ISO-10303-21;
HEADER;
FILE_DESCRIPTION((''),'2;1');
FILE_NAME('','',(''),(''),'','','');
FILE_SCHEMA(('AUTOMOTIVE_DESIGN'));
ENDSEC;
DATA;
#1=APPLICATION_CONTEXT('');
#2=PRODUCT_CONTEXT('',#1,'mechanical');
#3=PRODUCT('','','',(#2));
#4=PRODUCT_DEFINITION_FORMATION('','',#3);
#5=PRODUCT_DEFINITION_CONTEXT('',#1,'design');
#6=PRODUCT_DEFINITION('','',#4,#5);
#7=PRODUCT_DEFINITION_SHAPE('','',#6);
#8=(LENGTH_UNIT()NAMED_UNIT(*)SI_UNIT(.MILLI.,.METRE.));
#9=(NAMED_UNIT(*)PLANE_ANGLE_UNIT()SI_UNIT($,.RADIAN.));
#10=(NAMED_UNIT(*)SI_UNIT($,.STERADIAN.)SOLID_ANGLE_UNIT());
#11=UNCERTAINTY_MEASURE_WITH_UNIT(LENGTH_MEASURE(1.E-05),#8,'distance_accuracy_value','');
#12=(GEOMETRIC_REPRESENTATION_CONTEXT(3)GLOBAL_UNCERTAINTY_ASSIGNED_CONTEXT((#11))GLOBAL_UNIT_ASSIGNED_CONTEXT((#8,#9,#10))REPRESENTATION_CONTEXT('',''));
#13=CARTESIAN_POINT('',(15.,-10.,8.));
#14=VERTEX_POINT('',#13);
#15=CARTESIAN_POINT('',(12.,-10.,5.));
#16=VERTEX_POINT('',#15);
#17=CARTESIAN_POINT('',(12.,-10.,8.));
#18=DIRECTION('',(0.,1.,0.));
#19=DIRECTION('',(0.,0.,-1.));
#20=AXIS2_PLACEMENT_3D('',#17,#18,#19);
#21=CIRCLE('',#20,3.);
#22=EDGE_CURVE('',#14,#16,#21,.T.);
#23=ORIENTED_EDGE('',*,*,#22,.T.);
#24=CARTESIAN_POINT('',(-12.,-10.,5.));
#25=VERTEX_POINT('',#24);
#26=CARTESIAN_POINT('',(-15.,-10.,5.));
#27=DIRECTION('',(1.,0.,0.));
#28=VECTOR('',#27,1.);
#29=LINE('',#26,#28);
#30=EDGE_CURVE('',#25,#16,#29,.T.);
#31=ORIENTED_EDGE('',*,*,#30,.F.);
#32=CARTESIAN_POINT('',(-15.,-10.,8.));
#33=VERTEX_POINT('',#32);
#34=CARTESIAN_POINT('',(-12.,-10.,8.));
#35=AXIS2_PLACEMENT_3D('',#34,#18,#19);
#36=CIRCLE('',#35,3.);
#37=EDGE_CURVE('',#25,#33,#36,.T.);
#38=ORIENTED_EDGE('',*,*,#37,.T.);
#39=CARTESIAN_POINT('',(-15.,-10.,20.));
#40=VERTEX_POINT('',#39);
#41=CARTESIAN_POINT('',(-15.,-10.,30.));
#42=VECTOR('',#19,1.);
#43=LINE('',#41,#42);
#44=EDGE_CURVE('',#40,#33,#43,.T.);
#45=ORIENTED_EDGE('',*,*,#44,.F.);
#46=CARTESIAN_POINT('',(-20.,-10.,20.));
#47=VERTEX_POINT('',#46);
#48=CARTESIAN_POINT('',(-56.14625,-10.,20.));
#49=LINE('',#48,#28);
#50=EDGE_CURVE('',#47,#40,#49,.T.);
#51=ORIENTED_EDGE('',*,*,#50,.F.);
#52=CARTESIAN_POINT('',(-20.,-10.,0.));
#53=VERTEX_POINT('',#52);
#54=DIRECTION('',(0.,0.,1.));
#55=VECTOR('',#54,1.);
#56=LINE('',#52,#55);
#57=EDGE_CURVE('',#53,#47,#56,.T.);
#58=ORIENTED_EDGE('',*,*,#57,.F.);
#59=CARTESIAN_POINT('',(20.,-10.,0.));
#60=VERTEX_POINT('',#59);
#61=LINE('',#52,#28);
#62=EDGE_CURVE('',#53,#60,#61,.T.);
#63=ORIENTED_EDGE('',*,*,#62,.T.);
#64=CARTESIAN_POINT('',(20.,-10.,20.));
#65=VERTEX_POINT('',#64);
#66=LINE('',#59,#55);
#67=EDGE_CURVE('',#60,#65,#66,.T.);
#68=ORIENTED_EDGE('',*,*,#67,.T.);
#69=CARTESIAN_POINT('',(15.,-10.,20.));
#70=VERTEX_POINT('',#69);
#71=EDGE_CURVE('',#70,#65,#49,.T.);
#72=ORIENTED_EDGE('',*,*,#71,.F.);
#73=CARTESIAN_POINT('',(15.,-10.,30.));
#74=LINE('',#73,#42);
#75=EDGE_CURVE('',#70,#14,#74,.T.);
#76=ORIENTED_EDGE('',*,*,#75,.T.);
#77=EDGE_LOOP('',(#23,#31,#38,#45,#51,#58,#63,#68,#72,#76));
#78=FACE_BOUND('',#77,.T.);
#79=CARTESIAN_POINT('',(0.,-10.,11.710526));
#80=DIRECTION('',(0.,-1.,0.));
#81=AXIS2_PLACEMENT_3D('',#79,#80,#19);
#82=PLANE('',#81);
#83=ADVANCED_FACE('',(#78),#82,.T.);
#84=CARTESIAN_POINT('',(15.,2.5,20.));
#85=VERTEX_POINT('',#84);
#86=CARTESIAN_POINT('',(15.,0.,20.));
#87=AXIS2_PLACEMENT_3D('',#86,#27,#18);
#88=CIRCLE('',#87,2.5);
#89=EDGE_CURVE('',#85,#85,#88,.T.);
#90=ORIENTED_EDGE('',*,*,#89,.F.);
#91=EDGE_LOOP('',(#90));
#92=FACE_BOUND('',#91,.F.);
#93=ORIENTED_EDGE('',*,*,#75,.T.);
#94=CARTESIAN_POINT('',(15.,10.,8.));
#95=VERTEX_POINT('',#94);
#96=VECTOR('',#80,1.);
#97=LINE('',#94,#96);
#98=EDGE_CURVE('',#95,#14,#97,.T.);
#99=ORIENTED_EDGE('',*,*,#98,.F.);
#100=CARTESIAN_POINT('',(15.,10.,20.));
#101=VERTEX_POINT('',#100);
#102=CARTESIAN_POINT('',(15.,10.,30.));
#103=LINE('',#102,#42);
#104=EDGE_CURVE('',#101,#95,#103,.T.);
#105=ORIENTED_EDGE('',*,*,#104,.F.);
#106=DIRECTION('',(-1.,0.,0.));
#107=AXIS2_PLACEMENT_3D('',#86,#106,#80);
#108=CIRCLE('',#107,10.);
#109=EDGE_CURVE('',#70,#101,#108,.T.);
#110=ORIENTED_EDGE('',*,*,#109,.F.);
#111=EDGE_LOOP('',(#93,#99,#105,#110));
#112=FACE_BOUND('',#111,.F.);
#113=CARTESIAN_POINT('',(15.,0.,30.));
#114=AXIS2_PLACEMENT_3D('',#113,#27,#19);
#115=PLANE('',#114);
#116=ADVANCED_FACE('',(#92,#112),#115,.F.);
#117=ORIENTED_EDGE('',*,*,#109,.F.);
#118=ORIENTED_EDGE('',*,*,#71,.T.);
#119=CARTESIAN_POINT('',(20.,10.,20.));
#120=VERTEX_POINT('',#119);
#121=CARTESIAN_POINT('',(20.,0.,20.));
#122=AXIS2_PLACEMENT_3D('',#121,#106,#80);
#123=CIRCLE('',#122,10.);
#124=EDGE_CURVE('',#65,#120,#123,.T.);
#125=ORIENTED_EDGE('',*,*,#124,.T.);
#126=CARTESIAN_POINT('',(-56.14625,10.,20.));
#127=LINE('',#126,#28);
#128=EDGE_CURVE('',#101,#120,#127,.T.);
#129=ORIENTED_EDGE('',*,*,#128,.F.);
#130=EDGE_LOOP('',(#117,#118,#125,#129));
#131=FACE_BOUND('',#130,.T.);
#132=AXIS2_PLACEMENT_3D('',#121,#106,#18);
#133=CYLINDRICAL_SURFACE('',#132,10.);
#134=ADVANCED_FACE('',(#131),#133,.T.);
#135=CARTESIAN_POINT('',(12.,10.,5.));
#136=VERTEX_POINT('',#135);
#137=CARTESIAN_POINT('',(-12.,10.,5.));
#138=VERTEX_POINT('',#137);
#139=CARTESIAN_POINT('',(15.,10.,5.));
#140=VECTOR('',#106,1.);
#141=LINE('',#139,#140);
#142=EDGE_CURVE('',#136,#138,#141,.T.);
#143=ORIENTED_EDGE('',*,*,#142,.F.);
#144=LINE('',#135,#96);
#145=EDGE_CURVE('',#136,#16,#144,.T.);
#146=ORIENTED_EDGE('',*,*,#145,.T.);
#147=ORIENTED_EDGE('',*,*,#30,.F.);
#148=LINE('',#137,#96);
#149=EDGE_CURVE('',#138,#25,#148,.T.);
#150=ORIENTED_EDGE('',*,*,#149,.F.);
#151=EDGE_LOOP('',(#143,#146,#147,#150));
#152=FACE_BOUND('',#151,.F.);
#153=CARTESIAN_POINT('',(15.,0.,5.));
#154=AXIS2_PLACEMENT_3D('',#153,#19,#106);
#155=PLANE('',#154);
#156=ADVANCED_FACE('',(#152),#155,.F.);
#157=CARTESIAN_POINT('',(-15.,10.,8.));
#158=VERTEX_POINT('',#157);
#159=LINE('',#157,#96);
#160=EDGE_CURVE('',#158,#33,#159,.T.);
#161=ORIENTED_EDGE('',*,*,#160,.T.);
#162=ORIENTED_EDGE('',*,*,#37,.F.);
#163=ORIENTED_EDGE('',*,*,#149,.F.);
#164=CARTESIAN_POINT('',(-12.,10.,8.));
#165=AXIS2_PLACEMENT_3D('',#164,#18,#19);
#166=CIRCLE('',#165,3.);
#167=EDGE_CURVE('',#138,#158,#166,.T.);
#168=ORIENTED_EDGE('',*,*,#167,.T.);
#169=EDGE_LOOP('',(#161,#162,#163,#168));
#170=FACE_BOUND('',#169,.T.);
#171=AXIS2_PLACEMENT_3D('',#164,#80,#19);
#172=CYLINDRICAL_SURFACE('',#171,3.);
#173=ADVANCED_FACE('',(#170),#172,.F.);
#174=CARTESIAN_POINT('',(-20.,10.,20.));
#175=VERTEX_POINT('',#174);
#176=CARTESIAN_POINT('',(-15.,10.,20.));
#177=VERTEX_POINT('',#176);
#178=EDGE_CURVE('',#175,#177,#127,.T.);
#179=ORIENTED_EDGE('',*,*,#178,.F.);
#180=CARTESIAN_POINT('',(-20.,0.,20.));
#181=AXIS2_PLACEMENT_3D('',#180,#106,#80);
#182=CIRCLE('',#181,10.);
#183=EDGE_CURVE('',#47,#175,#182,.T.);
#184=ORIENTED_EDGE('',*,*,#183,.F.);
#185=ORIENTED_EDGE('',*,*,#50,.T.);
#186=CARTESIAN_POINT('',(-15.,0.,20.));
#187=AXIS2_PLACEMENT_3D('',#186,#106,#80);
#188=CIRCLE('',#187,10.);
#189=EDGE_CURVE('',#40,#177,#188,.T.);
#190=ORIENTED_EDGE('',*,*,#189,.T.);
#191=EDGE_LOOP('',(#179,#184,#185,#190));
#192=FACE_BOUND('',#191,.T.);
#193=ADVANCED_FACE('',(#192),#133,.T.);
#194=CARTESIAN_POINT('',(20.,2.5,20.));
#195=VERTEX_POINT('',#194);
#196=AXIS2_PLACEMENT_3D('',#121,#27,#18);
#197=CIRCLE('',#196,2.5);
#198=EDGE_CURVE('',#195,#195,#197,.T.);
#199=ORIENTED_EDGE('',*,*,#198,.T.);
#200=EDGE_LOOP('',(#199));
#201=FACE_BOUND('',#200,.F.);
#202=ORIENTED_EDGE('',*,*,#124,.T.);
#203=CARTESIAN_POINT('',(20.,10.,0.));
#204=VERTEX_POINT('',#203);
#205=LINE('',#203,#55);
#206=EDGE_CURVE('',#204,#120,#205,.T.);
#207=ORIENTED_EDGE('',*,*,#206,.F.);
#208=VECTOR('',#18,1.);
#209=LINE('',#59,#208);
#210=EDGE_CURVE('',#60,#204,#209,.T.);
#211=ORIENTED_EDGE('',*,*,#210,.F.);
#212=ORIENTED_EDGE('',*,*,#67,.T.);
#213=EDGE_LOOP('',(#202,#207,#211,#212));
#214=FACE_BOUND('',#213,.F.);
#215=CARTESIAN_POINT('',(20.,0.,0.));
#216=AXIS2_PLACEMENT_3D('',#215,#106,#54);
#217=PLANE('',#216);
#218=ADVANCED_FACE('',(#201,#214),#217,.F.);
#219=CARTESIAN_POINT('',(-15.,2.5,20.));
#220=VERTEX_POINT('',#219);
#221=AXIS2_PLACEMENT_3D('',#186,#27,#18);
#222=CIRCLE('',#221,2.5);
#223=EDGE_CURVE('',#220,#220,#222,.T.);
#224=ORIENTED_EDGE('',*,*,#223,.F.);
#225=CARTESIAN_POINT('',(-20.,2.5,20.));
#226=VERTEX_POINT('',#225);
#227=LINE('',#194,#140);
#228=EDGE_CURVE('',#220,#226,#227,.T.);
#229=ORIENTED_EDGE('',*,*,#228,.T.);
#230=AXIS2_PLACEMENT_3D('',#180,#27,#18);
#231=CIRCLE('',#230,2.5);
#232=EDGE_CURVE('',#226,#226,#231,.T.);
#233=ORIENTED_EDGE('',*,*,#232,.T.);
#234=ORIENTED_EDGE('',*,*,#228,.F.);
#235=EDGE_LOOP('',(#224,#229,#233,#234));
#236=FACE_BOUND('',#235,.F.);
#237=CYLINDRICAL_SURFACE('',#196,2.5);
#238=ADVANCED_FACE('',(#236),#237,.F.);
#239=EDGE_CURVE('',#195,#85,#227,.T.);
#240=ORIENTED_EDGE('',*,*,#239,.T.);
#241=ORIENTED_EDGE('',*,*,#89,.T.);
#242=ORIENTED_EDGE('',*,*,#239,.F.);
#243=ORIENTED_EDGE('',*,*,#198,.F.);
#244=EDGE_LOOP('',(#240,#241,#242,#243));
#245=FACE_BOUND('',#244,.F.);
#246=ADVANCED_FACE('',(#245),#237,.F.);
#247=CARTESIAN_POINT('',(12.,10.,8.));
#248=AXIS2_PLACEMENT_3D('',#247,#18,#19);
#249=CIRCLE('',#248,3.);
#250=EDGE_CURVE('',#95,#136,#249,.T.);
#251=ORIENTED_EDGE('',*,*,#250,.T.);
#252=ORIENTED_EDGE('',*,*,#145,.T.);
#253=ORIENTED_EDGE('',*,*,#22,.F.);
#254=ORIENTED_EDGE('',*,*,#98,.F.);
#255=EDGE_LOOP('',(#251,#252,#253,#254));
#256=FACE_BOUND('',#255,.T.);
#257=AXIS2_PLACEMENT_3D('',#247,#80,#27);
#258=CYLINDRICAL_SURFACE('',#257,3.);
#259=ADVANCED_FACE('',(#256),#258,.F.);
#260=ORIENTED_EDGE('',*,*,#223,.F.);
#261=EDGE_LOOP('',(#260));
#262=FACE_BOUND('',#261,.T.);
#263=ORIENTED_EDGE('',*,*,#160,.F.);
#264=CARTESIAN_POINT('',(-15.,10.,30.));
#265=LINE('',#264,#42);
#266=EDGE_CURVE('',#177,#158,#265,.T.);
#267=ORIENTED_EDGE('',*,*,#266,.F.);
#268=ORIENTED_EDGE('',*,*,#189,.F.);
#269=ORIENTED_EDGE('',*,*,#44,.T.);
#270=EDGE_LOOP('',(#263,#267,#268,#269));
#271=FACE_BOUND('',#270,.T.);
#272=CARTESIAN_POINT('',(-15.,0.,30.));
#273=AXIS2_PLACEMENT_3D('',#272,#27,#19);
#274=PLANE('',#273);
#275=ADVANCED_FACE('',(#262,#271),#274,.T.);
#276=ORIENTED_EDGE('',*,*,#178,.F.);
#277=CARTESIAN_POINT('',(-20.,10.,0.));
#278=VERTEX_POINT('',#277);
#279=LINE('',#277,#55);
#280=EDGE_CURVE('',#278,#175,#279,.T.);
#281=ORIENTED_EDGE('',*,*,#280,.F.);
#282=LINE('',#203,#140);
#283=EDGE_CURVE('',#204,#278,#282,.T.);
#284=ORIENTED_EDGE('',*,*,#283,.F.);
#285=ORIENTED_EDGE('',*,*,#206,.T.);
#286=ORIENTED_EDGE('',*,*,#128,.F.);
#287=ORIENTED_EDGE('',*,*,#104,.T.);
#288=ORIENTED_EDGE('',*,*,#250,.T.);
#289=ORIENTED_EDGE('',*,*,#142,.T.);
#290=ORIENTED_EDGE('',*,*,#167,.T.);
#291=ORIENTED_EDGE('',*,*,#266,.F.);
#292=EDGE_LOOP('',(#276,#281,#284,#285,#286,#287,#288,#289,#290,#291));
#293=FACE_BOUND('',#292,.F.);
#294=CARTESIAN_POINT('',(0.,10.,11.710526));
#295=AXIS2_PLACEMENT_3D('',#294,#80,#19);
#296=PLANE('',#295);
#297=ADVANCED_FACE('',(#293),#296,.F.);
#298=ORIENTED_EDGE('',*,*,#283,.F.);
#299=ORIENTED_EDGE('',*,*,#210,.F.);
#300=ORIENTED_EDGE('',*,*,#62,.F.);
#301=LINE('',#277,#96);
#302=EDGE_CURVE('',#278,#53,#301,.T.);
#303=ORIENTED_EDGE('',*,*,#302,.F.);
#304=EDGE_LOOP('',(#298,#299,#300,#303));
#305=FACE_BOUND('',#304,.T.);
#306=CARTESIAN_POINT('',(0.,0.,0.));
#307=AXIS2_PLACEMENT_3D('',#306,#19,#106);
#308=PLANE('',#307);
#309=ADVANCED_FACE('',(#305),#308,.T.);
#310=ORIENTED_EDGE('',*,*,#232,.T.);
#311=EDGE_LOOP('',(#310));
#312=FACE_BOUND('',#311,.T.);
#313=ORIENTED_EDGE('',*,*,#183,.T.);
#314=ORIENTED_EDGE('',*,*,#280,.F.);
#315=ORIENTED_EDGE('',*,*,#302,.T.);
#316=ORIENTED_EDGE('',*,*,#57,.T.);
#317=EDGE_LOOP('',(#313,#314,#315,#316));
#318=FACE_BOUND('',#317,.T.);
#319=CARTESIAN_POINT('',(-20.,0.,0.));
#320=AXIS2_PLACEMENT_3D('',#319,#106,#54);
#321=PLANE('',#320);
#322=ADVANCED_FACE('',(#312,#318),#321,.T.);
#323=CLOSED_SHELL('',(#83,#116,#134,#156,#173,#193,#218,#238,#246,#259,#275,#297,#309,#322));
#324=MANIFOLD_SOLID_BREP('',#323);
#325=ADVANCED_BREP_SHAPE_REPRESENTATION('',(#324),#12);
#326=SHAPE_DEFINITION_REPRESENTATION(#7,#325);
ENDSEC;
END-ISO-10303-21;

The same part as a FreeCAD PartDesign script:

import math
import FreeCAD as App
import Part
import Sketcher
from FreeCAD import Vector
Q = App.Units.Quantity


def edges_at(feature, points):
    """Names of the edges that pass closest to the given points."""
    edges = feature.Shape.Edges
    near = lambda p: min(range(len(edges)), key=lambda i: edges[i].distToShape(Part.Vertex(*p))[0])
    return sorted({f"Edge{near(p) + 1}" for p in points})


def add_polygon(sketch, points):
    """Adds a closed chain of lines whose ends are joined by coincident constraints."""
    first, n = sketch.GeometryCount, len(points)
    for a, b in zip(points, points[1:] + points[:1]):
        sketch.addGeometry(Part.LineSegment(App.Vector(*a, 0), App.Vector(*b, 0)), False)
    for i in range(n):
        sketch.addConstraint(Sketcher.Constraint("Coincident", first + i, 2, first + (i + 1) % n, 1))

doc = App.newDocument("Part")
params = doc.addObject("Spreadsheet::Sheet", "Params")
for row, (alias, value) in enumerate([
    ("sketch1_width", "5 mm"),
    ("sketch1_width2", "30 mm"),
    ("sketch1_height", "25 mm"),
    ("pad1_length", "20 mm"),
    ("sketch2_diameter", "5 mm"),
    ("sketch2_radius", "10 mm"),
    ("pocket1_length", "152.2925 mm"),
    ("fillet_radius", "3 mm"),
], start=1):
    params.set(f"A{row}", alias)
    params.set(f"B{row}", "=" + value)
    params.setAlias(f"B{row}", alias)

body = doc.addObject("PartDesign::Body", "Body")

# Sketch on XZ plane
sketch1 = doc.addObject("Sketcher::SketchObject", "Sketch")
body.addObject(sketch1)
sketch1.AttachmentSupport = (doc.XZ_Plane, [""])
sketch1.MapMode = "FlatFace"
add_polygon(sketch1, [(20, 30), (15, 30), (15, 5), (-15, 5), (-15, 30), (-20, 30), (-20, 0), (20, 0)])  # lines 0-7
sketch1.addConstraint(Sketcher.Constraint("Horizontal", 0))
sketch1.addConstraint(Sketcher.Constraint("Vertical", 1))
sketch1.addConstraint(Sketcher.Constraint("Horizontal", 2))
sketch1.addConstraint(Sketcher.Constraint("Vertical", 3))
sketch1.addConstraint(Sketcher.Constraint("Horizontal", 4))
sketch1.addConstraint(Sketcher.Constraint("Vertical", 5))
sketch1.addConstraint(Sketcher.Constraint("Horizontal", 6))
sketch1.addConstraint(Sketcher.Constraint("Vertical", 7))
sketch1.addConstraint(Sketcher.Constraint("Symmetric", 5, 2, 6, 2, -1, 1))
sketch1.addConstraint(Sketcher.Constraint("Symmetric", 0, 2, 3, 2, -2))
sketch1.addConstraint(Sketcher.Constraint("Equal", 2, 5))
sketch1.addConstraint(Sketcher.Constraint("DistanceX", 0, 2, 0, 1, Q("5 mm")))
sketch1.addConstraint(Sketcher.Constraint("DistanceX", 2, 2, 2, 1, Q("30 mm")))
sketch1.addConstraint(Sketcher.Constraint("DistanceY", 1, 2, 1, 1, Q("25 mm")))
sketch1.setExpression("Constraints[19]", "Params.sketch1_width")
sketch1.setExpression("Constraints[20]", "Params.sketch1_width2")
sketch1.setExpression("Constraints[21]", "Params.sketch1_height")
pad1 = doc.addObject("PartDesign::Pad", "Pad")
body.addObject(pad1)
pad1.Profile = sketch1
pad1.setExpression("Length", "Params.pad1_length")
pad1.Midplane = True

# Sketch on YZ plane
sketch2 = doc.addObject("Sketcher::SketchObject", "Sketch001")
body.addObject(sketch2)
sketch2.AttachmentSupport = (doc.YZ_Plane, [""])
sketch2.MapMode = "FlatFace"
sketch2.AttachmentOffset = App.Placement(Vector(0, 0, 20), App.Rotation())
sketch2.addGeometry(Part.LineSegment(Vector(10, 30, 0), Vector(0, 30, 0)), False)
sketch2.addGeometry(Part.ArcOfCircle(Part.Circle(Vector(0, 20, 0), Vector(0, 0, 1), 10), math.radians(0), math.radians(90)), False)
sketch2.addGeometry(Part.LineSegment(Vector(10, 20, 0), Vector(10, 30, 0)), False)
sketch2.addGeometry(Part.ArcOfCircle(Part.Circle(Vector(0, 20, 0), Vector(0, 0, 1), 10), math.radians(90), math.radians(180)), False)
sketch2.addGeometry(Part.LineSegment(Vector(0, 30, 0), Vector(-10, 30, 0)), False)
sketch2.addGeometry(Part.LineSegment(Vector(-10, 30, 0), Vector(-10, 20, 0)), False)
sketch2.addGeometry(Part.Circle(Vector(0, 20, 0), Vector(0, 0, 1), 2.5), False)
sketch2.addConstraint(Sketcher.Constraint("Tangent", 0, 2, 1, 2))
sketch2.addConstraint(Sketcher.Constraint("Tangent", 1, 1, 2, 1))
sketch2.addConstraint(Sketcher.Constraint("Coincident", 2, 2, 0, 1))
sketch2.addConstraint(Sketcher.Constraint("Tangent", 3, 1, 4, 1))
sketch2.addConstraint(Sketcher.Constraint("Coincident", 4, 2, 5, 1))
sketch2.addConstraint(Sketcher.Constraint("Tangent", 5, 2, 3, 2))
sketch2.addConstraint(Sketcher.Constraint("Horizontal", 0))
sketch2.addConstraint(Sketcher.Constraint("Vertical", 2))
sketch2.addConstraint(Sketcher.Constraint("Horizontal", 4))
sketch2.addConstraint(Sketcher.Constraint("Vertical", 5))
sketch2.addConstraint(Sketcher.Constraint("Coincident", 3, 3, 1, 3))
sketch2.addConstraint(Sketcher.Constraint("Coincident", 6, 3, 1, 3))
sketch2.addConstraint(Sketcher.Constraint("Equal", 1, 3))
sketch2.addConstraint(Sketcher.Constraint("PointOnObject", 1, 3, -2))
sketch2.addConstraint(Sketcher.Constraint("Diameter", 6, Q("5 mm")))
sketch2.addConstraint(Sketcher.Constraint("Radius", 1, Q("10 mm")))
sketch2.addConstraint(Sketcher.Constraint("DistanceY", -1, 1, 1, 3, Q("20 mm")))
sketch2.setExpression("Constraints[14]", "Params.sketch2_diameter")
sketch2.setExpression("Constraints[15]", "Params.sketch2_radius")
pocket1 = doc.addObject("PartDesign::Pocket", "Pocket")
body.addObject(pocket1)
pocket1.Profile = sketch2
pocket1.setExpression("Length", "Params.pocket1_length")
pocket1.Midplane = True
doc.recompute()

fillet = doc.addObject("PartDesign::Fillet", "Fillet")
body.addObject(fillet)
fillet.Base = (pocket1, edges_at(pocket1, [(-15, 0, 5), (15, 0, 5)]))
fillet.setExpression("Radius", "Params.fillet_radius")

doc.recompute()
